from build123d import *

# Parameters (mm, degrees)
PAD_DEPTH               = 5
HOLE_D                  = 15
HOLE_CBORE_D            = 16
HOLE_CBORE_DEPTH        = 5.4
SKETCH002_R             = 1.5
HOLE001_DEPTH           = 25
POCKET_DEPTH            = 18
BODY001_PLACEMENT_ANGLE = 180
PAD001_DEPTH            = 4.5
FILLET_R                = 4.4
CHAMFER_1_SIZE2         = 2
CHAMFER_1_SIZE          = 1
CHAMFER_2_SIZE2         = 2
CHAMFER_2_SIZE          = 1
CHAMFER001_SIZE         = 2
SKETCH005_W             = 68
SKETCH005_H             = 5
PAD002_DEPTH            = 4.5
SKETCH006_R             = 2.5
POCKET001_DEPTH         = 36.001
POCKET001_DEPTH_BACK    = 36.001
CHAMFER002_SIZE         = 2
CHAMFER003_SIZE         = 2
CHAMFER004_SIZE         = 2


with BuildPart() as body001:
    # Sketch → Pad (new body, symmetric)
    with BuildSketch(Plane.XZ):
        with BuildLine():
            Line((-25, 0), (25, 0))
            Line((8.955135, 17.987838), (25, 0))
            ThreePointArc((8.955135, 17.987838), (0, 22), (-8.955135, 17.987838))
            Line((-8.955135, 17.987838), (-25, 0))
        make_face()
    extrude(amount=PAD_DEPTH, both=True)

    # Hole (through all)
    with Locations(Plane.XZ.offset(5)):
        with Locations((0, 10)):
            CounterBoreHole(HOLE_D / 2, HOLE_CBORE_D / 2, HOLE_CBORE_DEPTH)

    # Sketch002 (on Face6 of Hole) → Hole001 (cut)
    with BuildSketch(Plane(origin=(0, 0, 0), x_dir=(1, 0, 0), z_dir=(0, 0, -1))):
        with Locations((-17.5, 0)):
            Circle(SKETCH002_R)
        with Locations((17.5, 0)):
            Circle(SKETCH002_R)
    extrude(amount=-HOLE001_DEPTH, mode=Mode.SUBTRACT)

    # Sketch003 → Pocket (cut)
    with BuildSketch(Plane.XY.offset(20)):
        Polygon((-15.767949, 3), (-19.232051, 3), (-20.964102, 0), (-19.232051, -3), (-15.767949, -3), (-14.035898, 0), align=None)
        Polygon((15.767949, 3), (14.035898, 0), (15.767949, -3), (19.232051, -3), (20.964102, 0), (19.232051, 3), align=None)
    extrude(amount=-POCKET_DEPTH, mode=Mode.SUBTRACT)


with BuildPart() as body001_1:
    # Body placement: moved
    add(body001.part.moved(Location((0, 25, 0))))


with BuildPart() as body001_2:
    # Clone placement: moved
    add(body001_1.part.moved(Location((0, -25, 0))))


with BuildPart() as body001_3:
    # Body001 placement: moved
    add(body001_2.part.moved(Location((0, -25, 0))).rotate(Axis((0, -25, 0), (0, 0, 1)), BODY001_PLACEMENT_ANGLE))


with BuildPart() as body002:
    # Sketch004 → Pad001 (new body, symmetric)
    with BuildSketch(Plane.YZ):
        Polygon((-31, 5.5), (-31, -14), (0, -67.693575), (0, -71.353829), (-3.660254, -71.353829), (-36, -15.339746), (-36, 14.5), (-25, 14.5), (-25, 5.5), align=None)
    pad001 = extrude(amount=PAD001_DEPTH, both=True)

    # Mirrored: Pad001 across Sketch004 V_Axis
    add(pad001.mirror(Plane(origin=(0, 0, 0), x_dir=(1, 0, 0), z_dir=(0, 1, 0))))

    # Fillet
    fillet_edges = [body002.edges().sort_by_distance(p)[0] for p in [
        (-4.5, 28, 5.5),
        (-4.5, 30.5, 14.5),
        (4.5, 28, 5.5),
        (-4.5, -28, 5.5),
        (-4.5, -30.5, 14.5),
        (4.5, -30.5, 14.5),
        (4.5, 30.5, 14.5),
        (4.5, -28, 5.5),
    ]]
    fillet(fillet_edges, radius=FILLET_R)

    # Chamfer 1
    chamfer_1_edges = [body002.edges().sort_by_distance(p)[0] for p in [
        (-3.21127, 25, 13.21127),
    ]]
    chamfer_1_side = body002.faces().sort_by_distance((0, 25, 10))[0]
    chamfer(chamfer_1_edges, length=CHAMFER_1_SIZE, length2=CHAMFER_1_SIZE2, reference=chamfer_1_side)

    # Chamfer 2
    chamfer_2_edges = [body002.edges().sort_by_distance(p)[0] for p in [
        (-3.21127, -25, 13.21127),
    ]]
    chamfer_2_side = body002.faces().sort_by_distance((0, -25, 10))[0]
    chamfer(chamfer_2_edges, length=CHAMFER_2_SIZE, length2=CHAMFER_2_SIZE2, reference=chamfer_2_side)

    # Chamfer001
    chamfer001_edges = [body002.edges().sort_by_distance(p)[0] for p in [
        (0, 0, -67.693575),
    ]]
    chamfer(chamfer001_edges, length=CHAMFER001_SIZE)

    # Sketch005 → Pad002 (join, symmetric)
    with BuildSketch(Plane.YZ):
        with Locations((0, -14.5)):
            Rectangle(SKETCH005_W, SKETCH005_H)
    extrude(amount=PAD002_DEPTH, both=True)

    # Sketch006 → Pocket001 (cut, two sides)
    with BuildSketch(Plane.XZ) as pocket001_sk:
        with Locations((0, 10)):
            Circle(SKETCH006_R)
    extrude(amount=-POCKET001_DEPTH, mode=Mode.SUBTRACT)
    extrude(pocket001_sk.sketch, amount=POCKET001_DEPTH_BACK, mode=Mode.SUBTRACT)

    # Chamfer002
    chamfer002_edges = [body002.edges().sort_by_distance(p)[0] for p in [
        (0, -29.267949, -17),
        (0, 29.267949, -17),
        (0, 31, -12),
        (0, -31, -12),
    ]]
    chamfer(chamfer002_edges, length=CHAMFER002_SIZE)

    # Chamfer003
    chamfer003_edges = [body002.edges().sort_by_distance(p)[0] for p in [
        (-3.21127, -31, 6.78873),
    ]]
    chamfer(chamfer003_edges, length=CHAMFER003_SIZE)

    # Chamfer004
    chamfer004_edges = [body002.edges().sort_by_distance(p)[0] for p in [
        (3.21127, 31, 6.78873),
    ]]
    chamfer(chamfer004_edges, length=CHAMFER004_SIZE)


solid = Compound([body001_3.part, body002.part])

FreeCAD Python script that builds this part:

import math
import FreeCAD as App
import Part
import Sketcher
from FreeCAD import Vector
Q = App.Units.Quantity


def edges_at(feature, points):
    """Names of the edges that pass closest to the given points."""
    edges = feature.Shape.Edges
    near = lambda p: min(range(len(edges)), key=lambda i: edges[i].distToShape(Part.Vertex(*p))[0])
    return sorted({f"Edge{near(p) + 1}" for p in points})


def add_polygon(sketch, points):
    """Adds a closed chain of lines whose ends are joined by coincident constraints."""
    first, n = sketch.GeometryCount, len(points)
    for a, b in zip(points, points[1:] + points[:1]):
        sketch.addGeometry(Part.LineSegment(App.Vector(*a, 0), App.Vector(*b, 0)), False)
    for i in range(n):
        sketch.addConstraint(Sketcher.Constraint("Coincident", first + i, 2, first + (i + 1) % n, 1))

doc = App.newDocument("Part")
body = doc.addObject("PartDesign::Body", "Body")

sketch1 = body.newObject("Sketcher::SketchObject", "Sketch")
sketch1.AttachmentSupport = (doc.getObject("XZ_Plane"), [""])
sketch1.MapMode = "FlatFace"
sketch1.addGeometry([
    Part.LineSegment(Vector(-25, 0, 0), Vector(25, 0, 0)),
    Part.LineSegment(Vector(25, 0, 0), Vector(8.955135, 17.987838, 0)),
    Part.ArcOfCircle(Part.Circle(Vector(0, 10, 0), Vector(0, 0, 1), 12), math.radians(41.732454), math.radians(138.267546)),
    Part.LineSegment(Vector(-8.955135, 17.987838, 0), Vector(-25, 0, 0)),
], False)
sketch1.addConstraint([
    Sketcher.Constraint("Coincident", 0, 2, 1, 1),
    Sketcher.Constraint("Tangent", 1, 2, 2, 1),
    Sketcher.Constraint("Tangent", 2, 2, 3, 1),
    Sketcher.Constraint("Coincident", 3, 2, 0, 1),
    Sketcher.Constraint("Horizontal", 0),
    Sketcher.Constraint("Symmetric", 0, 2, 3, 2, -1, 1),
    Sketcher.Constraint("PointOnObject", 2, 3, -2),
    Sketcher.Constraint("Radius", 2, 12.0),
    Sketcher.Constraint("DistanceX", 0, 1, 0, 2, 50.0),
    Sketcher.Constraint("DistanceY", -1, 1, 2, 3, 10.0),
])
pad1 = body.newObject("PartDesign::Pad", "Pad")
pad1.Profile = sketch1
pad1.Length = 10
pad1.Midplane = True

sketch2 = body.newObject("Sketcher::SketchObject", "Sketch001")
sketch2.AttachmentSupport = (doc.getObject("XZ_Plane"), [""])
sketch2.MapMode = "FlatFace"
sketch2.AttachmentOffset = App.Placement(Vector(0, 0, 5), App.Rotation())
sketch2.addGeometry(Part.Circle(Vector(0, 10, 0), Vector(0, 0, 1), 7.5), False)
sketch2.addConstraint([
    Sketcher.Constraint("PointOnObject", 0, 3, -2),
    Sketcher.Constraint("Diameter", 0, 15.0),
    Sketcher.Constraint("DistanceY", -1, 1, 0, 3, 10.0),
])
doc.recompute()
hole = body.newObject("PartDesign::Hole", "Hole")
hole.Profile = sketch2
hole.ThreadType = "None"
hole.Diameter = 15
hole.DepthType = "ThroughAll"
hole.HoleCutType = "Counterbore"
hole.HoleCutDiameter = 16
hole.HoleCutDepth = 5.4

sketch3 = body.newObject("Sketcher::SketchObject", "Sketch002")
sketch3.AttachmentSupport = (doc.getObject("XY_Plane"), [""])
sketch3.MapMode = "FlatFace"
sketch3.addGeometry([
    Part.Circle(Vector(-17.5, 0, 0), Vector(0, 0, 1), 1.5),
    Part.Circle(Vector(17.5, 0, 0), Vector(0, 0, 1), 1.5),
], False)
sketch3.addConstraint([
    Sketcher.Constraint("Equal", 0, 1),
    Sketcher.Constraint("Symmetric", 0, 3, 1, 3, -1, 1),
    Sketcher.Constraint("PointOnObject", 0, 3, -1),
    Sketcher.Constraint("Diameter", 0, 3.0),
    Sketcher.Constraint("DistanceX", 0, 3, 1, 3, 35.0),
])
pocket1 = body.newObject("PartDesign::Pocket", "Pocket")
pocket1.Profile = sketch3
pocket1.Length = 25
pocket1.Reversed = True

sketch4 = body.newObject("Sketcher::SketchObject", "Sketch003")
sketch4.AttachmentSupport = (doc.getObject("XY_Plane"), [""])
sketch4.MapMode = "FlatFace"
sketch4.AttachmentOffset = App.Placement(Vector(0, 0, 20), App.Rotation())
add_polygon(sketch4, [(-15.767949, 3), (-19.232051, 3), (-20.964102, 0), (-19.232051, -3), (-15.767949, -3), (-14.035898, 0)])
add_polygon(sketch4, [(15.767949, 3), (14.035898, 0), (15.767949, -3), (19.232051, -3), (20.964102, 0), (19.232051, 3)])
sketch4.addConstraint([
    Sketcher.Constraint("Horizontal", 0),
    Sketcher.Constraint("Horizontal", 3),
    Sketcher.Constraint("Horizontal", 8),
    Sketcher.Constraint("Horizontal", 11),
    Sketcher.Constraint("Symmetric", 4, 2, 6, 2, -1, 1),
    Sketcher.Constraint("Symmetric", 5, 2, 7, 2, -1, 1),
    Sketcher.Constraint("Symmetric", 1, 2, 9, 2, -1, 1),
    Sketcher.Constraint("Symmetric", 2, 2, 10, 2, -1, 1),
    Sketcher.Constraint("Symmetric", 3, 2, 7, 2, -2),
    Sketcher.Constraint("PointOnObject", 1, 2, -1),
    Sketcher.Constraint("PointOnObject", 4, 2, -1),
    Sketcher.Constraint("Parallel", 1, 4),
    Sketcher.Constraint("Parallel", 2, 5),
    Sketcher.Constraint("Parallel", 4, 6),
    Sketcher.Constraint("Parallel", 6, 9),
    Sketcher.Constraint("Angle", 1, Q("-120.000003 deg")),
    Sketcher.Constraint("DistanceY", -1, 1, 0, 2, 3.0),
    Sketcher.Constraint("DistanceX", 2, 2, 7, 2, 35.0),
    Sketcher.Constraint("DistanceX", 0, 2, 0, 1, 3.464102),
])
pocket2 = body.newObject("PartDesign::Pocket", "Pocket001")
pocket2.Profile = sketch4
pocket2.Length = 18
body2 = doc.addObject("PartDesign::Body", "Body001")
doc.recompute()

body.Placement = App.Placement(Vector(0, 25, 0), App.Rotation(Vector(0, 0, 1), 0))
boolean = body2.newObject("PartDesign::Boolean", "Boolean")
boolean.Type = "Fuse"
boolean.addObjects([body])
body3 = doc.addObject("PartDesign::Body", "Body002")
doc.recompute()

body2.Placement = App.Placement(Vector(0, -25, 0), App.Rotation(Vector(0, 0, 1), 0))
boolean2 = body3.newObject("PartDesign::Boolean", "Boolean001")
boolean2.Type = "Fuse"
boolean2.addObjects([body2])
body4 = doc.addObject("PartDesign::Body", "Body003")
doc.recompute()

body3.Placement = App.Placement(Vector(0, -25, 0), App.Rotation(Vector(0, 0, 1), 180))
boolean3 = body4.newObject("PartDesign::Boolean", "Boolean002")
boolean3.Type = "Fuse"
boolean3.addObjects([body3])
body5 = doc.addObject("PartDesign::Body", "Body004")

sketch5 = body5.newObject("Sketcher::SketchObject", "Sketch004")
sketch5.AttachmentSupport = (doc.getObject("YZ_Plane004"), [""])
sketch5.MapMode = "FlatFace"
add_polygon(sketch5, [(-31, -14), (-31, 5.5), (-25, 5.5), (-25, 14.5), (-36, 14.5), (-36, -15.339746), (-3.660254, -71.353829), (0, -71.353829), (0, -67.693575)])
sketch5.addConstraint([
    Sketcher.Constraint("Vertical", 0),
    Sketcher.Constraint("Horizontal", 1),
    Sketcher.Constraint("Vertical", 2),
    Sketcher.Constraint("Horizontal", 3),
    Sketcher.Constraint("Vertical", 4),
    Sketcher.Constraint("Horizontal", 6),
    Sketcher.Constraint("Vertical", 7),
    Sketcher.Constraint("PointOnObject", 6, 2, -2),
    Sketcher.Constraint("Parallel", 5, 8),
    Sketcher.Constraint("Equal", 6, 7),
    Sketcher.Constraint("DistanceX", 1, 1, 1, 2, 6.0),
    Sketcher.Constraint("DistanceX", 3, 2, 3, 1, 11.0),
    Sketcher.Constraint("DistanceY", 2, 1, 2, 2, 9.0),
    Sketcher.Constraint("Angle", 5, Q("-60 deg")),
    Sketcher.Constraint("Distance", 8, 62.0),
    Sketcher.Constraint("DistanceY", 0, 1, 0, 2, 19.5),
    Sketcher.Constraint("DistanceY", 8, 2, -1, 1, 14.0),
    Sketcher.Constraint("Distance", 5, 64.679492),
])
pad2 = body5.newObject("PartDesign::Pad", "Pad001")
pad2.Profile = sketch5
pad2.Length = 9
pad2.Midplane = True
doc.recompute()

mirrored = body5.newObject("PartDesign::Mirrored", "Mirrored")
mirrored.Originals = [pad2]
mirrored.MirrorPlane = (doc.getObject("XZ_Plane004"), [""])
body5.Tip = mirrored
doc.recompute()

fillet = body5.newObject("PartDesign::Fillet", "Fillet")
fillet.Base = (mirrored, edges_at(mirrored, [
    (-4.5, 28, 5.5),
    (-4.5, 30.5, 14.5),
    (4.5, 28, 5.5),
    (-4.5, -28, 5.5),
    (-4.5, -30.5, 14.5),
    (4.5, -30.5, 14.5),
    (4.5, 30.5, 14.5),
    (4.5, -28, 5.5),
]))
fillet.Radius = 4.4
doc.recompute()

chamfer = body5.newObject("PartDesign::Chamfer", "Chamfer")
chamfer.Base = (fillet, edges_at(fillet, [(-3.211, 25, 13.211)]))
chamfer.ChamferType = "Two distances"
chamfer.Size = 1
chamfer.Size2 = 2
doc.recompute()

chamfer2 = body5.newObject("PartDesign::Chamfer", "Chamfer001")
chamfer2.Base = (chamfer, edges_at(chamfer, [(-3.211, -25, 13.211)]))
chamfer2.ChamferType = "Two distances"
chamfer2.Size = 1
chamfer2.Size2 = 2
chamfer2.FlipDirection = True
doc.recompute()

chamfer3 = body5.newObject("PartDesign::Chamfer", "Chamfer002")
chamfer3.Base = (chamfer2, edges_at(chamfer2, [(0, 0, -67.694)]))
chamfer3.Size = 2

sketch6 = body5.newObject("Sketcher::SketchObject", "Sketch005")
sketch6.AttachmentSupport = (doc.getObject("YZ_Plane004"), [""])
sketch6.MapMode = "FlatFace"
add_polygon(sketch6, [(-34, -12), (-34, -17), (34, -17), (34, -12)])
sketch6.addConstraint([
    Sketcher.Constraint("Vertical", 0),
    Sketcher.Constraint("Horizontal", 1),
    Sketcher.Constraint("Vertical", 2),
    Sketcher.Constraint("Horizontal", 3),
    Sketcher.Constraint("DistanceX", 1, 1, 1, 2, 68.0),
    Sketcher.Constraint("DistanceY", 0, 2, 0, 1, 5.0),
    Sketcher.Constraint("DistanceX", 0, 2, -1, 1, 34.0),
    Sketcher.Constraint("DistanceY", 0, 2, -1, 1, 17.0),
])
pad3 = body5.newObject("PartDesign::Pad", "Pad002")
pad3.Profile = sketch6
pad3.Length = 9
pad3.Midplane = True

sketch7 = body5.newObject("Sketcher::SketchObject", "Sketch006")
sketch7.AttachmentSupport = (doc.getObject("XZ_Plane004"), [""])
sketch7.MapMode = "FlatFace"
sketch7.addGeometry(Part.Circle(Vector(0, 10, 0), Vector(0, 0, 1), 2.5), False)
sketch7.addConstraint([
    Sketcher.Constraint("PointOnObject", 0, 3, -2),
    Sketcher.Constraint("Diameter", 0, 5.0),
    Sketcher.Constraint("DistanceY", -1, 1, 0, 3, 10.0),
])
pocket3 = body5.newObject("PartDesign::Pocket", "Pocket002")
pocket3.Profile = sketch7
pocket3.Type = "ThroughAll"
pocket3.Midplane = True
doc.recompute()

chamfer4 = body5.newObject("PartDesign::Chamfer", "Chamfer003")
chamfer4.Base = (pocket3, edges_at(pocket3, [
    (0, -29.268, -17),
    (0, 29.268, -17),
    (0, 31, -12),
    (0, -31, -12),
]))
chamfer4.Size = 2
doc.recompute()

chamfer5 = body5.newObject("PartDesign::Chamfer", "Chamfer004")
chamfer5.Base = (chamfer4, edges_at(chamfer4, [(-3.211, -31, 6.789)]))
chamfer5.Size = 2
doc.recompute()

chamfer6 = body5.newObject("PartDesign::Chamfer", "Chamfer005")
chamfer6.Base = (chamfer5, edges_at(chamfer5, [(3.211, 31, 6.789)]))
chamfer6.Size = 2

doc.recompute()
